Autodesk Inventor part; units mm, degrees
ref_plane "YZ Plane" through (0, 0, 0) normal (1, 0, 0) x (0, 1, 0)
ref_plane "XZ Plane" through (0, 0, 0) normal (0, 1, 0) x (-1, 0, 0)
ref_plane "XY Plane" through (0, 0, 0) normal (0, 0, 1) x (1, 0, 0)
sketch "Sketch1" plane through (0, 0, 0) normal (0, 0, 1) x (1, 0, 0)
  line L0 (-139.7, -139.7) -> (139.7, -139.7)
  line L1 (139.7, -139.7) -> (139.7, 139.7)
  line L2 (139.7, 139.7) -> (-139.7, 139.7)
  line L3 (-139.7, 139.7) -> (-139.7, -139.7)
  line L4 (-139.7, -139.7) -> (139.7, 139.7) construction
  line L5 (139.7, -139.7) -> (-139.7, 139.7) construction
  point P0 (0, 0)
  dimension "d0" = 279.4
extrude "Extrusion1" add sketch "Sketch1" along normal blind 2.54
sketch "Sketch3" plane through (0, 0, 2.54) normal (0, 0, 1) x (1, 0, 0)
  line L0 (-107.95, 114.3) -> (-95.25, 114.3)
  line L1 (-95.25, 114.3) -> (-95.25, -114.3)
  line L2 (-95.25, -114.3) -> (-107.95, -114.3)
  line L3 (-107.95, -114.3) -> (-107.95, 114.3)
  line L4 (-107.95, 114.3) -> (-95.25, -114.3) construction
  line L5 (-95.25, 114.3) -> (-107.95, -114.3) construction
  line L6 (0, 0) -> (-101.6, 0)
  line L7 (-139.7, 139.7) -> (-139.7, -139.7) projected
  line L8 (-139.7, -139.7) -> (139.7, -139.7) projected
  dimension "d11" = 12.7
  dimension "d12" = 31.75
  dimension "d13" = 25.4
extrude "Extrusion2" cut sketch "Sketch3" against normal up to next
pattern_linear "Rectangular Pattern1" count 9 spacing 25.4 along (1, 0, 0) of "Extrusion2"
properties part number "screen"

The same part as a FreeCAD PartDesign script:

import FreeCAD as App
import Part
import Sketcher
Q = App.Units.Quantity

doc = App.newDocument("Part")
body = doc.addObject("PartDesign::Body", "Body")

# Sketch on XY plane
sketch1 = body.newObject("Sketcher::SketchObject", "Sketch")
sketch1.AttachmentSupport = (doc.getObject("XY_Plane"), [""])
sketch1.MapMode = "FlatFace"
sketch1.addGeometry([
    Part.LineSegment(App.Vector(-140, 140, 0), App.Vector(-140, -140, 0)),
    Part.LineSegment(App.Vector(-140, -140, 0), App.Vector(140, -140, 0)),
    Part.LineSegment(App.Vector(140, -140, 0), App.Vector(140, 140, 0)),
    Part.LineSegment(App.Vector(140, 140, 0), App.Vector(-140, 140, 0)),
], False)
sketch1.addConstraint([
    Sketcher.Constraint("Coincident", 0, 2, 1, 1),
    Sketcher.Constraint("Coincident", 1, 2, 2, 1),
    Sketcher.Constraint("Coincident", 2, 2, 3, 1),
    Sketcher.Constraint("Coincident", 3, 2, 0, 1),
    Sketcher.Constraint("Vertical", 0),
    Sketcher.Constraint("Horizontal", 1),
    Sketcher.Constraint("Vertical", 2),
    Sketcher.Constraint("Horizontal", 3),
    Sketcher.Constraint("Symmetric", 0, 2, 2, 2, -1, 1),
    Sketcher.Constraint("Equal", 3, 0),
    Sketcher.Constraint("DistanceX", 1, 1, 1, 2, Q("11 in")),
])
pad1 = body.newObject("PartDesign::Pad", "Pad")
pad1.Profile = sketch1
pad1.Length = Q("0.1 in")

# Sketch on XY plane
sketch2 = body.newObject("Sketcher::SketchObject", "Sketch001")
sketch2.AttachmentSupport = (doc.getObject("XY_Plane"), [""])
sketch2.MapMode = "FlatFace"
sketch2.AttachmentOffset = App.Placement(App.Vector(0, 0, 0.1 * 25.4), App.Rotation())
sketch2.addGeometry([
    Part.LineSegment(App.Vector(-95, 114, 0), App.Vector(-108, 114, 0)),
    Part.LineSegment(App.Vector(-108, 114, 0), App.Vector(-108, -114, 0)),
    Part.LineSegment(App.Vector(-108, -114, 0), App.Vector(-95, -114, 0)),
    Part.LineSegment(App.Vector(-95, -114, 0), App.Vector(-95, 114, 0)),
], False)
sketch2.addConstraint([
    Sketcher.Constraint("Coincident", 0, 2, 1, 1),
    Sketcher.Constraint("Coincident", 1, 2, 2, 1),
    Sketcher.Constraint("Coincident", 2, 2, 3, 1),
    Sketcher.Constraint("Coincident", 3, 2, 0, 1),
    Sketcher.Constraint("Horizontal", 0),
    Sketcher.Constraint("Vertical", 1),
    Sketcher.Constraint("Horizontal", 2),
    Sketcher.Constraint("Vertical", 3),
    Sketcher.Constraint("DistanceX", 0, 2, 0, 1, Q("0.5 in")),
    Sketcher.Constraint("DistanceY", 1, 2, 1, 1, Q("9 in")),
    Sketcher.Constraint("DistanceY", -1, 1, 0, 2, Q("4.5 in")),
    Sketcher.Constraint("DistanceX", 0, 2, -1, 1, Q("4.25 in")),
])
pocket1 = body.newObject("PartDesign::Pocket", "Pocket")
pocket1.Profile = sketch2
pocket1.Type = "UpToFirst"
doc.recompute()

linearpattern = body.newObject("PartDesign::LinearPattern", "LinearPattern")
linearpattern.Originals = [pocket1]
linearpattern.Direction = (doc.getObject("X_Axis"), [""])
linearpattern.Mode = "offset"
linearpattern.Offset = Q("1 in")
linearpattern.Occurrences = 9
body.Tip = linearpattern

doc.recompute()
